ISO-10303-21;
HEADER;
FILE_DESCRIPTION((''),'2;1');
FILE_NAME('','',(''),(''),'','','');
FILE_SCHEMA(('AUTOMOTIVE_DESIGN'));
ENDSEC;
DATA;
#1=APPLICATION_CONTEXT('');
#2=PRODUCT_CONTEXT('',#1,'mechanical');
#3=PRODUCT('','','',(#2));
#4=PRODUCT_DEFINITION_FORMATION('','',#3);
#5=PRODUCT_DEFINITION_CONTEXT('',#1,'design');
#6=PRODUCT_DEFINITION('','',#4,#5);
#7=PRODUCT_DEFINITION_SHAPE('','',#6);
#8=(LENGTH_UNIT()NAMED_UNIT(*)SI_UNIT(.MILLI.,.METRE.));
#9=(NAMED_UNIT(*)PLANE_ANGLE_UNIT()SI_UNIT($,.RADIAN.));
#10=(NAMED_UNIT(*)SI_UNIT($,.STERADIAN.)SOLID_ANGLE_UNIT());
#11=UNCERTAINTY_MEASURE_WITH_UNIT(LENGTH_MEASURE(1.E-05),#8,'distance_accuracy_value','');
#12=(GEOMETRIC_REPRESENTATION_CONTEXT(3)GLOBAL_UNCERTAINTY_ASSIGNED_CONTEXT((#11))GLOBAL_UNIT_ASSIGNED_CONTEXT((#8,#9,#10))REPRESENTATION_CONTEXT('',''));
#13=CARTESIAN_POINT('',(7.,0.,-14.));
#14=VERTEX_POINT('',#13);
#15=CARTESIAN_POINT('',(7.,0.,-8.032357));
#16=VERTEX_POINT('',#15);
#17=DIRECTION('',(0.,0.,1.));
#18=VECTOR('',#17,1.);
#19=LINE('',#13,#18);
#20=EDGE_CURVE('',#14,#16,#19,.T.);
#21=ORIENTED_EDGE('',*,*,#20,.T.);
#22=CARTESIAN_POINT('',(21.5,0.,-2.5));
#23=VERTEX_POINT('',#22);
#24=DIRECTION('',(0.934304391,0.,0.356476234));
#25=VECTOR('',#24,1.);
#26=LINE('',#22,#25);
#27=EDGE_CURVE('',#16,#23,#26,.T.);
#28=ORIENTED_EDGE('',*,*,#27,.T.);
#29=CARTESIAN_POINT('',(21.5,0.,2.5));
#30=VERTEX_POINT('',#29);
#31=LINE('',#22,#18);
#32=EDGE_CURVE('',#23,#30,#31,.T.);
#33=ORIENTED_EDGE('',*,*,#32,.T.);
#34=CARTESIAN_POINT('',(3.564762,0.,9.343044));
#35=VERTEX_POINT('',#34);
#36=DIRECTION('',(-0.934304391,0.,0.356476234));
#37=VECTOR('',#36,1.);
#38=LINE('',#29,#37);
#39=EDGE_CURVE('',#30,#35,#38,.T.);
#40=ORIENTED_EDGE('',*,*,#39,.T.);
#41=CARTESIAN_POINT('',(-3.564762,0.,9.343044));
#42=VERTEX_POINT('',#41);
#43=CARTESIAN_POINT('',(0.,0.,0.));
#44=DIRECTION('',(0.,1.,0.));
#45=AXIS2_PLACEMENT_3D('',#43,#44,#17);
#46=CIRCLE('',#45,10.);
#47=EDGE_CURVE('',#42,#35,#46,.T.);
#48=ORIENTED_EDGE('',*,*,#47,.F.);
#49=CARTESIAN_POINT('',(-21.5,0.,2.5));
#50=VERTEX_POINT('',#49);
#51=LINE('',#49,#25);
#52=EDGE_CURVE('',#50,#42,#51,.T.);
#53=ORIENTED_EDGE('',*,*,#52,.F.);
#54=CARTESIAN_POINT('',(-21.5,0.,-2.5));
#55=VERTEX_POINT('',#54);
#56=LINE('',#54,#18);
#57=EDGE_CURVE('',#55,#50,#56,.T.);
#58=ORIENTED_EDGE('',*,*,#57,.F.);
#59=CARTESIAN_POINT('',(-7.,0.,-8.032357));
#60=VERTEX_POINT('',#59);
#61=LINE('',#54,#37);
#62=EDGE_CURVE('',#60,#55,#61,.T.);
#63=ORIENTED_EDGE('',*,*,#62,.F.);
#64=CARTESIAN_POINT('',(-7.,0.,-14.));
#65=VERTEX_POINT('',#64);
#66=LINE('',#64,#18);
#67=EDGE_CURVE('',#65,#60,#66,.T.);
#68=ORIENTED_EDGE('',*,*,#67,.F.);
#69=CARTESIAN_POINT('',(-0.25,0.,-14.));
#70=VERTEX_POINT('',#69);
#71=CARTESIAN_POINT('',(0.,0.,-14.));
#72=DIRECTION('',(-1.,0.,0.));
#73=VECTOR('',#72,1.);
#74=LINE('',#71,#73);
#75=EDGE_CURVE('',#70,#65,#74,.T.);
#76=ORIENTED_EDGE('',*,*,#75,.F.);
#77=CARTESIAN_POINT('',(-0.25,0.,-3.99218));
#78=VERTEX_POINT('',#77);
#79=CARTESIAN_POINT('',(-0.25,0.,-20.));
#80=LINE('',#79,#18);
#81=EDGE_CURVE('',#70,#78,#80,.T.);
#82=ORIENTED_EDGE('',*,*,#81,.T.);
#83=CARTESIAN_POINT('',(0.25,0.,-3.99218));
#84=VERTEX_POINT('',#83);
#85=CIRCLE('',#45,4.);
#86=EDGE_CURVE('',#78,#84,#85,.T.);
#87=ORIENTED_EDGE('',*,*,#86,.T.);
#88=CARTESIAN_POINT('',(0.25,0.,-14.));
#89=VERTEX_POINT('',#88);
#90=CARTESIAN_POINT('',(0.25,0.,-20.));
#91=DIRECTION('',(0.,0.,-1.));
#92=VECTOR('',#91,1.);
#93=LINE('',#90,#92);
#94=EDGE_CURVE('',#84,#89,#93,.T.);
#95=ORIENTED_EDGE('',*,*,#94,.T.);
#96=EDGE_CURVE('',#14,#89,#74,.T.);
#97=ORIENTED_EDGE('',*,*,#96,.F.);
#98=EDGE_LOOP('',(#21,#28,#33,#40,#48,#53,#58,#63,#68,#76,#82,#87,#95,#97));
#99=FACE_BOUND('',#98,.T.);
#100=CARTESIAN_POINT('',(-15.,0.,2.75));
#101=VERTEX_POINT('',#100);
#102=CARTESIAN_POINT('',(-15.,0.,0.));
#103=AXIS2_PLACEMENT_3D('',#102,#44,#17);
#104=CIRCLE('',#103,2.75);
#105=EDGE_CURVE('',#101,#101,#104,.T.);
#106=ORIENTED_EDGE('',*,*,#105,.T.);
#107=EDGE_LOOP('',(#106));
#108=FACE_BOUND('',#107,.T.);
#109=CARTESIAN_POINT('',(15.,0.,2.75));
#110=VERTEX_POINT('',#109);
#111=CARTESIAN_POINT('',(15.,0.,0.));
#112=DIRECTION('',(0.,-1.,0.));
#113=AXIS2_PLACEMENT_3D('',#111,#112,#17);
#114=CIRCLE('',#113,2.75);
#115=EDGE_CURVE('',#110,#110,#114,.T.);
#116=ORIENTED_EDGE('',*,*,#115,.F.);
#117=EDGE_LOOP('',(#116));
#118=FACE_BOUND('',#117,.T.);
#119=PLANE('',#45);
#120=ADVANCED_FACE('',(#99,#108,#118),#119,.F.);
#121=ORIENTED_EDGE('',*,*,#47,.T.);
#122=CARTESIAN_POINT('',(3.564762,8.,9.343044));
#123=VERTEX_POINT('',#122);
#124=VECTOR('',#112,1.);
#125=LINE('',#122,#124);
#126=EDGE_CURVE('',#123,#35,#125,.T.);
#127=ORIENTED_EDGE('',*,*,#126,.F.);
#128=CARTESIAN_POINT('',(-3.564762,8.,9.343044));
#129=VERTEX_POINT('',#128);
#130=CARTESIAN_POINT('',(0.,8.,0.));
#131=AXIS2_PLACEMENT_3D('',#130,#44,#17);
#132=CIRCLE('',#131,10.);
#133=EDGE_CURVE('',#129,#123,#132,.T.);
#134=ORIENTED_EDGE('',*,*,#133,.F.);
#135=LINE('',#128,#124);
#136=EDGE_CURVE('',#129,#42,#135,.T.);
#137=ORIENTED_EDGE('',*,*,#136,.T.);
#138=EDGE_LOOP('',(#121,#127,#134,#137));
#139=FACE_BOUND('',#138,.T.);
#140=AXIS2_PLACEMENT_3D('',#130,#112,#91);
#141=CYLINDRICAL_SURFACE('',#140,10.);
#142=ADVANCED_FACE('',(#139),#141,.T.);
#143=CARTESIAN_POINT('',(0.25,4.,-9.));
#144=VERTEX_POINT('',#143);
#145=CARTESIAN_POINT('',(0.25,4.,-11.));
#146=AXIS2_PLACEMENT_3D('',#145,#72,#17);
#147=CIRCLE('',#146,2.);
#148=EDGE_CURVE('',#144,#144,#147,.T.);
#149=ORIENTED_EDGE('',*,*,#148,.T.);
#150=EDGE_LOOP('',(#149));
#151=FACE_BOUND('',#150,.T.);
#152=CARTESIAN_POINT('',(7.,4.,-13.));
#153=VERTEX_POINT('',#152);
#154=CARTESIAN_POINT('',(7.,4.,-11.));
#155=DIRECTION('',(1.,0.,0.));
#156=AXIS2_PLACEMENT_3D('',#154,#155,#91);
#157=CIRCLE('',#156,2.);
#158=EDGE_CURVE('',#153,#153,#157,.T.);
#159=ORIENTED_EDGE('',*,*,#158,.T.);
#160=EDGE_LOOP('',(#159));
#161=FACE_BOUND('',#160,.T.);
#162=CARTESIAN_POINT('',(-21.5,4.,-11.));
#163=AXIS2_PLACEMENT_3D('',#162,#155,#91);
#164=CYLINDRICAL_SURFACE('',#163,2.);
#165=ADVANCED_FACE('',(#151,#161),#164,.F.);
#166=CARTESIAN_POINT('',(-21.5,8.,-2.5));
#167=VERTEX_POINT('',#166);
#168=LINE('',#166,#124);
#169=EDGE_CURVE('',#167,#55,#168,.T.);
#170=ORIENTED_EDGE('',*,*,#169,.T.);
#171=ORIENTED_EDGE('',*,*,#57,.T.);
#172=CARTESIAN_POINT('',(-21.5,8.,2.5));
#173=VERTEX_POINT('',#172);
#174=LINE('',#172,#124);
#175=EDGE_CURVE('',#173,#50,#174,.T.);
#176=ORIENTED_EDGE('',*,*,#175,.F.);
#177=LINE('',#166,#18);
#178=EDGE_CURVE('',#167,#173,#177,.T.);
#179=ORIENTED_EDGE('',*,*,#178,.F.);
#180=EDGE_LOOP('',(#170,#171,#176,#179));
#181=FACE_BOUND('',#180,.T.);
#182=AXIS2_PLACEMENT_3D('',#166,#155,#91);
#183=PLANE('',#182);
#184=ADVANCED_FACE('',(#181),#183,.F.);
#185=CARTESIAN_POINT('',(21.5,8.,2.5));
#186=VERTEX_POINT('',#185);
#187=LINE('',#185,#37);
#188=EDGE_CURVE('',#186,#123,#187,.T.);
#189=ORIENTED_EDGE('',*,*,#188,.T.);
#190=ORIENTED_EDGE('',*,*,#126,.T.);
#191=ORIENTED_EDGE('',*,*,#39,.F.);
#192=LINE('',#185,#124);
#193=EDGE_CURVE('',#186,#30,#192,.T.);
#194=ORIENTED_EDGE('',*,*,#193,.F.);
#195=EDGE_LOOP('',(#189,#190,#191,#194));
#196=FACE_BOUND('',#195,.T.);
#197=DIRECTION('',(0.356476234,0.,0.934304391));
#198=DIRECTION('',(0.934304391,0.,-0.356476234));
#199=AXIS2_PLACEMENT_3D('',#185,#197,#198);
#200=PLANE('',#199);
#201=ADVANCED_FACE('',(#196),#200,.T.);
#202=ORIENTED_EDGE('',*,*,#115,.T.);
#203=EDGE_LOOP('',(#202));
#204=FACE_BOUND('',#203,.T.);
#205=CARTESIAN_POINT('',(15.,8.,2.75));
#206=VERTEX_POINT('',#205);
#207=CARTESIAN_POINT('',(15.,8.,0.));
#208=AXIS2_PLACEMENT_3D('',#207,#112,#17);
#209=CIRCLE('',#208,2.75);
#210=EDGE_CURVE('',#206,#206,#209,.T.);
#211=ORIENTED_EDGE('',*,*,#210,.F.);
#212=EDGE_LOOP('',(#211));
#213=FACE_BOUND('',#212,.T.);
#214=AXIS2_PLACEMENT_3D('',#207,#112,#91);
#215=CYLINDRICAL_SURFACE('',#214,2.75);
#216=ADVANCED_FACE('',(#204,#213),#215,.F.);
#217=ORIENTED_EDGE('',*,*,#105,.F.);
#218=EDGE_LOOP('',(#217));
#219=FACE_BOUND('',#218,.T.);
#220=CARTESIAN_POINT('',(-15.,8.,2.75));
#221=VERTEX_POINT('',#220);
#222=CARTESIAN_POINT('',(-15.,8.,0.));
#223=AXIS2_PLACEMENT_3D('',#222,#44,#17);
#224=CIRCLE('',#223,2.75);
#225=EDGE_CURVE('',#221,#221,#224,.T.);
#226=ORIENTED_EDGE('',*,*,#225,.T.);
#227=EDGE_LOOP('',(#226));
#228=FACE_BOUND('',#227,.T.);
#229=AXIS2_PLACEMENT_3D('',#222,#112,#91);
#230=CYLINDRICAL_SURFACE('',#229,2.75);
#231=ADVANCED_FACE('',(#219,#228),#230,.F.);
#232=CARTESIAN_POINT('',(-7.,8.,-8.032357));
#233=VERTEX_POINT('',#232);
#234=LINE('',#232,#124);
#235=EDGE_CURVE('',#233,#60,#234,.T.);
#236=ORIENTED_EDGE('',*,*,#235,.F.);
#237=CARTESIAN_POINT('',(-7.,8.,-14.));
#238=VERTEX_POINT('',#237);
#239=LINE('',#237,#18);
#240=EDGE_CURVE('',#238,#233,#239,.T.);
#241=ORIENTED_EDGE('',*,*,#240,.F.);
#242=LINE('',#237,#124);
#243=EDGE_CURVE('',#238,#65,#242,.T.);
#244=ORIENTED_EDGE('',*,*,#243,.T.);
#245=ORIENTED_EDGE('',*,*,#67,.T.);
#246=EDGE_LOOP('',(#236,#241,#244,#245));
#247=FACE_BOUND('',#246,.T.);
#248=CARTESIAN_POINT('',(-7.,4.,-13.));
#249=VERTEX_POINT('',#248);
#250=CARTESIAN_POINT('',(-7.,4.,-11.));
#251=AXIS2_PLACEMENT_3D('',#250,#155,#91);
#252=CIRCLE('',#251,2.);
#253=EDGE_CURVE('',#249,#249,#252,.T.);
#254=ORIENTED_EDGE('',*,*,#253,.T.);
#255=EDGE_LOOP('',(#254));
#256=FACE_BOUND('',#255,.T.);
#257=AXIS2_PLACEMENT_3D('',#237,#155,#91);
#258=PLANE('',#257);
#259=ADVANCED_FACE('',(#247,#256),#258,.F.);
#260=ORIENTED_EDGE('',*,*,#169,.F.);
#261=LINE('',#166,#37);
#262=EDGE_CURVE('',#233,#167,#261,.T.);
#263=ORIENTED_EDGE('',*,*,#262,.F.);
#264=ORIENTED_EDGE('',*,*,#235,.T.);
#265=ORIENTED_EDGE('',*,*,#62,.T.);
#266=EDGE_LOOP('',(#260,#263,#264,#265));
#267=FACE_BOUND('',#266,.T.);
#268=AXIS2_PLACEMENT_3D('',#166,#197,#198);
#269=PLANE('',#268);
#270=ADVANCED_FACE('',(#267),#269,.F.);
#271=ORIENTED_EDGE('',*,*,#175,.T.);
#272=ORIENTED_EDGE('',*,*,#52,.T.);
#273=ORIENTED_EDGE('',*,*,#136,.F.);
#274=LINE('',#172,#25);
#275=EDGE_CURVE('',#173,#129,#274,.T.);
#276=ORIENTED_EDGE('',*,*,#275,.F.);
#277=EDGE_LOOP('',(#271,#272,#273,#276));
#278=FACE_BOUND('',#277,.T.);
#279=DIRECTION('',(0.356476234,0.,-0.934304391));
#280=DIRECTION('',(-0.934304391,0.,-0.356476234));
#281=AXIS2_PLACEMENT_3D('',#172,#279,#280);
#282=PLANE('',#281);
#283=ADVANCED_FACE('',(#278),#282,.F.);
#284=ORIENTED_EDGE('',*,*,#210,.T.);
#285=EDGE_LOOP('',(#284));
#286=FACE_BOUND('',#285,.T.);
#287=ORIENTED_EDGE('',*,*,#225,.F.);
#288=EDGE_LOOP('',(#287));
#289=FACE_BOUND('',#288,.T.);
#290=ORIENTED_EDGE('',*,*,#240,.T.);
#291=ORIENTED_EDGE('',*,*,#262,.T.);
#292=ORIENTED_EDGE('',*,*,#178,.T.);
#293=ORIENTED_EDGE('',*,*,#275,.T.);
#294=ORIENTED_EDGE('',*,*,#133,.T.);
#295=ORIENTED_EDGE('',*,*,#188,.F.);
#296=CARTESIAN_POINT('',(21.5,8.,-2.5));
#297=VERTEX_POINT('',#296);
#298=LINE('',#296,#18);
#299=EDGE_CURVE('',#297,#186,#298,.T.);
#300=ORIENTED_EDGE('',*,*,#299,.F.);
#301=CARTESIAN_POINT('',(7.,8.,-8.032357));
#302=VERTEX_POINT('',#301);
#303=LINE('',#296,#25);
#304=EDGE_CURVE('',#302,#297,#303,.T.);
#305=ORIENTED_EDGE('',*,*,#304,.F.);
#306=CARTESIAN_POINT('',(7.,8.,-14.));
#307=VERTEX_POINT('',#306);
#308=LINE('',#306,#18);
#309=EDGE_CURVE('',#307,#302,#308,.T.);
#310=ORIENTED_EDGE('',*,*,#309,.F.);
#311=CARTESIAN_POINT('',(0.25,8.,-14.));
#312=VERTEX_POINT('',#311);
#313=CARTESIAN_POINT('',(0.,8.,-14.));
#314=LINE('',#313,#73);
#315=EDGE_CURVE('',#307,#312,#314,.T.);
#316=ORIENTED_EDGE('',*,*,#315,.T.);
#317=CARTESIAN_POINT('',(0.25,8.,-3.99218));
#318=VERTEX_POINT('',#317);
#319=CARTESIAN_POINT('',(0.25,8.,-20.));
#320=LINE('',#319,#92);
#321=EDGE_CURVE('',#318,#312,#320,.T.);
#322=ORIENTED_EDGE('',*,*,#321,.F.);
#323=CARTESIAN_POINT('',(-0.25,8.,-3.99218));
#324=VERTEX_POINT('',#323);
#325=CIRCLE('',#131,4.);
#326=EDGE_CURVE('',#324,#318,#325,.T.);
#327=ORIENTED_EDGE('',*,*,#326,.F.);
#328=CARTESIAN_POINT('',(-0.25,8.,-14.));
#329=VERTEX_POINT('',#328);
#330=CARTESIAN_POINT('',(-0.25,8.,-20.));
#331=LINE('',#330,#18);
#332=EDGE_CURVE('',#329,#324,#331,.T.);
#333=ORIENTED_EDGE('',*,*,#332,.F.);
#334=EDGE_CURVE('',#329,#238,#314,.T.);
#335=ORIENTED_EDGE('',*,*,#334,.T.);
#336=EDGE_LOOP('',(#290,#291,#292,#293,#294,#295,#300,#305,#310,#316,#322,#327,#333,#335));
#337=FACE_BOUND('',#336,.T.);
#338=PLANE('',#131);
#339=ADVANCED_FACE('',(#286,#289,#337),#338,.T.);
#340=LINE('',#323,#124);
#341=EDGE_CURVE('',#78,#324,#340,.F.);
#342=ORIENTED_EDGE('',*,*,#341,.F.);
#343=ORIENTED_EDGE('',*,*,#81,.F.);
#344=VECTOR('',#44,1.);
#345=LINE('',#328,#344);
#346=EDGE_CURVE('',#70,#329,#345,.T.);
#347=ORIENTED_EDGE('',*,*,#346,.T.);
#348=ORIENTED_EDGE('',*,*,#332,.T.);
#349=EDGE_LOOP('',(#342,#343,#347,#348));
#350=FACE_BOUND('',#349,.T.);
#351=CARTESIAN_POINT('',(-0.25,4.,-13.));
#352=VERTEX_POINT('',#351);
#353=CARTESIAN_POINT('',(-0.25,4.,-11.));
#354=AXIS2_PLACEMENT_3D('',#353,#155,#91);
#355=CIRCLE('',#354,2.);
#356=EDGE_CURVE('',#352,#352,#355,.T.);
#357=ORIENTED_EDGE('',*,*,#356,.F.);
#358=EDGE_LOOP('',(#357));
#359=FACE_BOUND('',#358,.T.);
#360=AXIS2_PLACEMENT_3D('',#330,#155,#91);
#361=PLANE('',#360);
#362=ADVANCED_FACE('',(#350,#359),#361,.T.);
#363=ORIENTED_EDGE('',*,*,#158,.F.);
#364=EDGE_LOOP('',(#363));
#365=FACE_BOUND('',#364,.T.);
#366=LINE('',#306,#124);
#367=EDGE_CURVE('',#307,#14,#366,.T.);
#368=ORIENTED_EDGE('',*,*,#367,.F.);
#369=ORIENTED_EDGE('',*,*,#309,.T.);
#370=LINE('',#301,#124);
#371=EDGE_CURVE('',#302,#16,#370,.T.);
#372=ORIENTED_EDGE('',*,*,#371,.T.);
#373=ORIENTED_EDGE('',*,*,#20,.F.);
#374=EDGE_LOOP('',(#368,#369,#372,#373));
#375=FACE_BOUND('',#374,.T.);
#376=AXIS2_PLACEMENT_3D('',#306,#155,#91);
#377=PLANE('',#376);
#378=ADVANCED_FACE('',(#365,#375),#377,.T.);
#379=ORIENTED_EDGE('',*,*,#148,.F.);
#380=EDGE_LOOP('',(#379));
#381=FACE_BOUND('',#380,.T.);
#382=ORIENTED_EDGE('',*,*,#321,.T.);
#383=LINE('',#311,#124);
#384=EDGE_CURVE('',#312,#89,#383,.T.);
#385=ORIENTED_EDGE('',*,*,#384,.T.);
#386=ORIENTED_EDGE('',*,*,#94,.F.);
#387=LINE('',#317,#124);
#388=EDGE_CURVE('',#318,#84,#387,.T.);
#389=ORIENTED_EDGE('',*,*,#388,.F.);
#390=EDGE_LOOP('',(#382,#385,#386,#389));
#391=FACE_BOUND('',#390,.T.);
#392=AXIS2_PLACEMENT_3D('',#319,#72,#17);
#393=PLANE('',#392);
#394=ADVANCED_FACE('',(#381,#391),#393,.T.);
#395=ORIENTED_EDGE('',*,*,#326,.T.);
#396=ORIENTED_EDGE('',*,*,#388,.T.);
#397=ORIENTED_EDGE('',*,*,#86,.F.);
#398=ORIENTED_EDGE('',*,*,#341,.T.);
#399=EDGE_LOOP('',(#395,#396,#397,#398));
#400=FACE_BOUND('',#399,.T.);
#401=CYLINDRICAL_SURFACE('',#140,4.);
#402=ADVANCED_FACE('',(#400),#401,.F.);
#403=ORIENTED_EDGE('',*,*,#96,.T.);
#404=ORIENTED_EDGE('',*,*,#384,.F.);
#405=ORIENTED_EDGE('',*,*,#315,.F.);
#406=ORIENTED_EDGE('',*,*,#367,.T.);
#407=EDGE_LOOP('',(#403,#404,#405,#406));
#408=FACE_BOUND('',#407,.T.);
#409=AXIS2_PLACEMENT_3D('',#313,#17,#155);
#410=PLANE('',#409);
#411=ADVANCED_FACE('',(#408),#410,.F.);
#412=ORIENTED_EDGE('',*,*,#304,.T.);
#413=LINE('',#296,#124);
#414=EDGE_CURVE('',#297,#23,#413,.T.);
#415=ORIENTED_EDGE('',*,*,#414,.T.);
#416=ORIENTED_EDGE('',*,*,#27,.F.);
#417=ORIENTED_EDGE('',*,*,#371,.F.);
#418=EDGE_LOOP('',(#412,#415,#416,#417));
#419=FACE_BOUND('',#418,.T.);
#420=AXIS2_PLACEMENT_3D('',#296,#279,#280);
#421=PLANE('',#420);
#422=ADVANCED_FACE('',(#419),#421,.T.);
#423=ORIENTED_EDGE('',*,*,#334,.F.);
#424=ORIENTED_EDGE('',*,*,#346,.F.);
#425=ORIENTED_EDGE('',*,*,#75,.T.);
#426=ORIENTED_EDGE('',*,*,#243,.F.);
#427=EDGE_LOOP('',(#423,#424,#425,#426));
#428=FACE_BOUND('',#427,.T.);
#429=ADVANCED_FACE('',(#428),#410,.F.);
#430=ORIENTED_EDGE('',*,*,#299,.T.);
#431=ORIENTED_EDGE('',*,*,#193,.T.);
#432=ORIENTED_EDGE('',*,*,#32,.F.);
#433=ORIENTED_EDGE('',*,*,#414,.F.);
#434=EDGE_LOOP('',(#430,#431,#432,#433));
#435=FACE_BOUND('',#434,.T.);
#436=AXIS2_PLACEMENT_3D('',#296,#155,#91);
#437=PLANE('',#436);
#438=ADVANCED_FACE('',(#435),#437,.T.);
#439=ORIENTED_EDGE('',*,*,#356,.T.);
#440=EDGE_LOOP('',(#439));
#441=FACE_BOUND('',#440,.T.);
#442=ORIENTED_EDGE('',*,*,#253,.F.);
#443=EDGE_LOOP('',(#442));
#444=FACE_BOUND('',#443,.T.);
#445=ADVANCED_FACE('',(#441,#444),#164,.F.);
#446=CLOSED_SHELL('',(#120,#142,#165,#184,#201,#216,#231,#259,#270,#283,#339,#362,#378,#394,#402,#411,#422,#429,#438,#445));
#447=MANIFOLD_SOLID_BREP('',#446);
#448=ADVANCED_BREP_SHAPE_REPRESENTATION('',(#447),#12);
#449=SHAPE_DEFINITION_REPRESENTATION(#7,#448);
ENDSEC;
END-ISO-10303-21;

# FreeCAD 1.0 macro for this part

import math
import FreeCAD as App
import Part
import Sketcher
from FreeCAD import Vector
Q = App.Units.Quantity

doc = App.newDocument("Part")
body = doc.addObject("PartDesign::Body", "Body")

sketch1 = body.newObject("Sketcher::SketchObject", "Sketch")
sketch1.AttachmentSupport = (doc.getObject("XZ_Plane"), [""])
sketch1.MapMode = "FlatFace"
sketch1.addGeometry([
    Part.LineSegment(Vector(0, 10, 0), Vector(0, -14, 0)),
    Part.LineSegment(Vector(0, -14, 0), Vector(-7, -14, 0)),
    Part.LineSegment(Vector(-7, -14, 0), Vector(-7, -8.032357, 0)),
    Part.LineSegment(Vector(-7, -8.032357, 0), Vector(-21.5, -2.5, 0)),
    Part.LineSegment(Vector(-21.5, -2.5, 0), Vector(-21.5, 2.5, 0)),
    Part.LineSegment(Vector(-21.5, 2.5, 0), Vector(-3.564762, 9.343044, 0)),
    Part.ArcOfCircle(Part.Circle(Vector(0, 0, 0), Vector(0, 0, 1), 10), math.radians(90), math.radians(110.883947)),
    Part.Circle(Vector(-15, 0, 0), Vector(0, 0, 1), 2.75),
], False)
sketch1.addConstraint([
    Sketcher.Constraint("Coincident", 0, 2, 1, 1),
    Sketcher.Constraint("Coincident", 1, 2, 2, 1),
    Sketcher.Constraint("Coincident", 2, 2, 3, 1),
    Sketcher.Constraint("Coincident", 3, 2, 4, 1),
    Sketcher.Constraint("Coincident", 4, 2, 5, 1),
    Sketcher.Constraint("Tangent", 5, 2, 6, 2),
    Sketcher.Constraint("Coincident", 6, 1, 0, 1),
    Sketcher.Constraint("Vertical", 0),
    Sketcher.Constraint("Horizontal", 1),
    Sketcher.Constraint("Vertical", 2),
    Sketcher.Constraint("Vertical", 4),
    Sketcher.Constraint("Coincident", 6, 3, -1, 1),
    Sketcher.Constraint("PointOnObject", 7, 3, -1),
    Sketcher.Constraint("PointOnObject", 0, 2, -2),
    Sketcher.Constraint("Radius", 6, Q("10 mm")),
    Sketcher.Constraint("Diameter", 7, Q("5.5 mm")),
    Sketcher.Constraint("DistanceX", 1, 2, 1, 1, Q("7 mm")),
    Sketcher.Constraint("DistanceY", 0, 2, 0, 1, Q("24 mm")),
    Sketcher.Constraint("DistanceY", 4, 1, 4, 2, Q("5 mm")),
    Sketcher.Constraint("DistanceX", 7, 3, -1, 1, Q("15 mm")),
    Sketcher.Constraint("DistanceX", 3, 2, -1, 1, Q("21.5 mm")),
    Sketcher.Constraint("DistanceY", 3, 2, -1, 1, Q("2.5 mm")),
    Sketcher.Constraint("DistanceY", 2, 2, 5, 2, Q("17.375401 mm")),
])
pad1 = body.newObject("PartDesign::Pad", "Pad")
pad1.Profile = sketch1
pad1.Length = 8
pad1.Reversed = True
doc.recompute()

mirrored = body.newObject("PartDesign::Mirrored", "Mirrored")
mirrored.Originals = [pad1]
mirrored.MirrorPlane = (doc.getObject("YZ_Plane"), [""])
body.Tip = mirrored

sketch2 = body.newObject("Sketcher::SketchObject", "Sketch001")
sketch2.AttachmentSupport = (doc.getObject("XZ_Plane"), [""])
sketch2.MapMode = "FlatFace"
sketch2.addGeometry(Part.Circle(Vector(0, 0, 0), Vector(0, 0, 1), 4), False)
sketch2.addConstraint([
    Sketcher.Constraint("Coincident", 0, 3, -1, 1),
    Sketcher.Constraint("Diameter", 0, Q("8 mm")),
])
pocket1 = body.newObject("PartDesign::Pocket", "Pocket")
pocket1.Profile = sketch2
pocket1.Type = "ThroughAll"

sketch3 = body.newObject("Sketcher::SketchObject", "Sketch002")
sketch3.AttachmentSupport = (doc.getObject("XZ_Plane"), [""])
sketch3.MapMode = "FlatFace"
sketch3.addGeometry([
    Part.LineSegment(Vector(-0.25, -20, 0), Vector(-0.25, 0, 0)),
    Part.LineSegment(Vector(-0.25, 0, 0), Vector(0.25, 0, 0)),
    Part.LineSegment(Vector(0.25, 0, 0), Vector(0.25, -20, 0)),
    Part.LineSegment(Vector(0.25, -20, 0), Vector(-0.25, -20, 0)),
], False)
sketch3.addConstraint([
    Sketcher.Constraint("Coincident", 0, 2, 1, 1),
    Sketcher.Constraint("Coincident", 1, 2, 2, 1),
    Sketcher.Constraint("Coincident", 2, 2, 3, 1),
    Sketcher.Constraint("Coincident", 3, 2, 0, 1),
    Sketcher.Constraint("Vertical", 0),
    Sketcher.Constraint("Horizontal", 1),
    Sketcher.Constraint("Vertical", 2),
    Sketcher.Constraint("Horizontal", 3),
    Sketcher.Constraint("Symmetric", 0, 2, 1, 2, -1, 1),
    Sketcher.Constraint("DistanceY", 0, 1, 0, 2, Q("20 mm")),
    Sketcher.Constraint("DistanceX", 1, 1, 1, 2, Q("0.5 mm")),
])
pocket2 = body.newObject("PartDesign::Pocket", "Pocket001")
pocket2.Profile = sketch3
pocket2.Type = "ThroughAll"

sketch4 = body.newObject("Sketcher::SketchObject", "Sketch003")
sketch4.AttachmentSupport = (doc.getObject("YZ_Plane"), [""])
sketch4.MapMode = "FlatFace"
sketch4.AttachmentOffset = App.Placement(Vector(0, 0, 7), App.Rotation())
sketch4.addGeometry(Part.Circle(Vector(4, -11, 0), Vector(0, 0, 1), 2), False)
sketch4.addConstraint([
    Sketcher.Constraint("Diameter", 0, Q("4 mm")),
    Sketcher.Constraint("DistanceX", -1, 1, 0, 3, Q("4 mm")),
    Sketcher.Constraint("DistanceY", 0, 3, -1, 1, Q("11 mm")),
])
pocket3 = body.newObject("PartDesign::Pocket", "Pocket002")
pocket3.Profile = sketch4
pocket3.Type = "ThroughAll"

doc.recompute()
